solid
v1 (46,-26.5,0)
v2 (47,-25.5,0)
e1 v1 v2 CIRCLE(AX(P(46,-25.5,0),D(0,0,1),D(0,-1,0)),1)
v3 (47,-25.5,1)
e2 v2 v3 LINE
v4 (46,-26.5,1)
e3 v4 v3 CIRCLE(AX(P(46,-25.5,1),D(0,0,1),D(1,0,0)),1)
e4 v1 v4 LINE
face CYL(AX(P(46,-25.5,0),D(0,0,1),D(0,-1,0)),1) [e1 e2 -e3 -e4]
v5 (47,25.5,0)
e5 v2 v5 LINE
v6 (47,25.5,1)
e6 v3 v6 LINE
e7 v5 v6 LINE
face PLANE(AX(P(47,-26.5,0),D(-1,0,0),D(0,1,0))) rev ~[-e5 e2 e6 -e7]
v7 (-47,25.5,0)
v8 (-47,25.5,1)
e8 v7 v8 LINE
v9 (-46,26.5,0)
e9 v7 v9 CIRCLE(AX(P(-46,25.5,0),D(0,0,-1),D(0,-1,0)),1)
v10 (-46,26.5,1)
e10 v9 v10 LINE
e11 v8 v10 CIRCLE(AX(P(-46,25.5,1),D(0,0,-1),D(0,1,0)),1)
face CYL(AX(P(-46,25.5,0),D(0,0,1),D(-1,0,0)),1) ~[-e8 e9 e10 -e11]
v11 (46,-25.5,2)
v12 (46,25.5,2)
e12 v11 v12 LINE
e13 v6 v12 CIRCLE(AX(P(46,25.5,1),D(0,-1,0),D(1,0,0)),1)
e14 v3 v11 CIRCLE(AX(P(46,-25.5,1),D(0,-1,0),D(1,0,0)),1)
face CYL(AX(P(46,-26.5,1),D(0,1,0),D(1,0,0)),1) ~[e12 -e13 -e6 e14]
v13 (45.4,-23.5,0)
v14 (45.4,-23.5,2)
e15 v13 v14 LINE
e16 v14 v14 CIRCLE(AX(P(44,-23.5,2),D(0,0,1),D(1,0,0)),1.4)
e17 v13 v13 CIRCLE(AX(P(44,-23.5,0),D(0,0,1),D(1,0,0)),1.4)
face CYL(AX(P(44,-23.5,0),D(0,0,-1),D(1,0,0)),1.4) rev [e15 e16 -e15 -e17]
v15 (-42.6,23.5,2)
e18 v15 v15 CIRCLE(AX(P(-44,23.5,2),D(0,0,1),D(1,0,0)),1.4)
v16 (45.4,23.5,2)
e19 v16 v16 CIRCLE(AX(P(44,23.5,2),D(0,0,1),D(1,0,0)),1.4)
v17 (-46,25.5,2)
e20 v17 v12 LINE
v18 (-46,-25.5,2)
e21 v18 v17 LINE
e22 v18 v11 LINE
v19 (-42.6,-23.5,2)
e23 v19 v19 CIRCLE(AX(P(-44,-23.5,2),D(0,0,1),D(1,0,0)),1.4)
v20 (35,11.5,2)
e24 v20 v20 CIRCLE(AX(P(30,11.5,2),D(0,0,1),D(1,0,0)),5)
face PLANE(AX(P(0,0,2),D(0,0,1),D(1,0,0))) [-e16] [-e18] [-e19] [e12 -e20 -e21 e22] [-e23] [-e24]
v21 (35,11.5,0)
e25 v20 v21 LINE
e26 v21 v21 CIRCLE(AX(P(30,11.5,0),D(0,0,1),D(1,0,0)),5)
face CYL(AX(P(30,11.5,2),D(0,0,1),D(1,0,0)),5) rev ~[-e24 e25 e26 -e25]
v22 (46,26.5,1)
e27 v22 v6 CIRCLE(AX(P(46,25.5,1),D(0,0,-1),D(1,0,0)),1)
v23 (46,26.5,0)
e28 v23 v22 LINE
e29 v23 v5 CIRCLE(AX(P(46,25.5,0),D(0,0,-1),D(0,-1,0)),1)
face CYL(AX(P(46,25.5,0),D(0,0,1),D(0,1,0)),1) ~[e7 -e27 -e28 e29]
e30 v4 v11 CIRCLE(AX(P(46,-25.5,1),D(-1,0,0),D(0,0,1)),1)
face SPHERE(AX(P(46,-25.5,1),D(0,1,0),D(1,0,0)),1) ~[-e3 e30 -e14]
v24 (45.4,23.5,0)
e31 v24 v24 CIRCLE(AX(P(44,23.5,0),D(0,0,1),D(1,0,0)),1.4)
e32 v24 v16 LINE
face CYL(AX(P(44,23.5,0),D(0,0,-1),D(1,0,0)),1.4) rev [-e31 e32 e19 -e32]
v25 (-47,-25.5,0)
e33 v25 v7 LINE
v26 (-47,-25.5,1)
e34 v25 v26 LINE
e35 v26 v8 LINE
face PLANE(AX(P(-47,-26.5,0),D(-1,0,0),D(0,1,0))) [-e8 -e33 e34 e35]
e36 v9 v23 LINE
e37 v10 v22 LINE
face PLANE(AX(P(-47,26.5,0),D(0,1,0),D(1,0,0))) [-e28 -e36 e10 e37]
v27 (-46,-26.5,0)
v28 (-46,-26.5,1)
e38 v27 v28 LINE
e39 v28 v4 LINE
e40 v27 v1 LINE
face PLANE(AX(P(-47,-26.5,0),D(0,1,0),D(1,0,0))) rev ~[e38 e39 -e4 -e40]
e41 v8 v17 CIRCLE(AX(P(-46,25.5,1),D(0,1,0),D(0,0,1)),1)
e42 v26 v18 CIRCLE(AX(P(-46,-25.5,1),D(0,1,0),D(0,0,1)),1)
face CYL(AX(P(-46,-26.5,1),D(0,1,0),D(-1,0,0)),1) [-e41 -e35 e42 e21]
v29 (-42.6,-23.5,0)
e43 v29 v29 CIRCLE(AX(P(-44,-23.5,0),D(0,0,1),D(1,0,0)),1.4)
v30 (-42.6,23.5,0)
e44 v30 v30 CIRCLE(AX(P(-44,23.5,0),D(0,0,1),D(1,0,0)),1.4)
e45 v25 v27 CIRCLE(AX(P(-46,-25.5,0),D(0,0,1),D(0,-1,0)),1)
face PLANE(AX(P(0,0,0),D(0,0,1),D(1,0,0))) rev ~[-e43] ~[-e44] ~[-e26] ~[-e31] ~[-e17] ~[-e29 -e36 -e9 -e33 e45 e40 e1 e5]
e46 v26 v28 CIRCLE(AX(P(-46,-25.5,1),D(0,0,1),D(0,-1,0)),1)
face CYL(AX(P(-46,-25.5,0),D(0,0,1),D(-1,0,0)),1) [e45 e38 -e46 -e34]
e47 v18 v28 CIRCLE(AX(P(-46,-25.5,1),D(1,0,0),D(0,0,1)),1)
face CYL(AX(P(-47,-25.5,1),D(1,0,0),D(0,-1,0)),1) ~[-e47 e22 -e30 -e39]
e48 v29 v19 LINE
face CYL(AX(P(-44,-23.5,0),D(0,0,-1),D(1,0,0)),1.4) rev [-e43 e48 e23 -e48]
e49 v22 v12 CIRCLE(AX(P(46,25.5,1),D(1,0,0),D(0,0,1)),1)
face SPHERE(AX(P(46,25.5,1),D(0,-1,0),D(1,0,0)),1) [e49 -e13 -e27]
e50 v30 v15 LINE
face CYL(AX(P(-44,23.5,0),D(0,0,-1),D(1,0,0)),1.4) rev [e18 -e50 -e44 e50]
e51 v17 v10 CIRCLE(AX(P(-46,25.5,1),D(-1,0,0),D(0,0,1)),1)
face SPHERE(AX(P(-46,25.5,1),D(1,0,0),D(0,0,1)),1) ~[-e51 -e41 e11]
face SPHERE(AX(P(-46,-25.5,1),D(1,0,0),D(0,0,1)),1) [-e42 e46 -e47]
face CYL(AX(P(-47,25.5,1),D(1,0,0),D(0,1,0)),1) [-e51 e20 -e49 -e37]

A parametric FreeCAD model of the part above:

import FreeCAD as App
import Part
import Sketcher


def edges_at(feature, points):
    """Names of the edges that pass closest to the given points."""
    edges = feature.Shape.Edges
    near = lambda p: min(range(len(edges)), key=lambda i: edges[i].distToShape(Part.Vertex(*p))[0])
    return sorted({f"Edge{near(p) + 1}" for p in points})


def add_polygon(sketch, points):
    """Adds a closed chain of lines whose ends are joined by coincident constraints."""
    first, n = sketch.GeometryCount, len(points)
    for a, b in zip(points, points[1:] + points[:1]):
        sketch.addGeometry(Part.LineSegment(App.Vector(*a, 0), App.Vector(*b, 0)), False)
    for i in range(n):
        sketch.addConstraint(Sketcher.Constraint("Coincident", first + i, 2, first + (i + 1) % n, 1))

doc = App.newDocument("Part")
body = doc.addObject("PartDesign::Body", "Body")

# Sketch on XY plane
sketch1 = doc.addObject("Sketcher::SketchObject", "Sketch")
body.addObject(sketch1)
sketch1.AttachmentSupport = (doc.XY_Plane, [""])
sketch1.MapMode = "FlatFace"
add_polygon(sketch1, [(-47, 26.5), (-47, -26.5), (47, -26.5), (47, 26.5)])  # lines 0-3
sketch1.addGeometry(Part.Circle(App.Vector(-44, -23.5, 0), App.Vector(0, 0, 1), 1.4), False)  # 4
sketch1.addGeometry(Part.Circle(App.Vector(44, -23.5, 0), App.Vector(0, 0, 1), 1.4), False)  # 5
sketch1.addGeometry(Part.Circle(App.Vector(-44, 23.5, 0), App.Vector(0, 0, 1), 1.4), False)  # 6
sketch1.addGeometry(Part.Circle(App.Vector(44, 23.5, 0), App.Vector(0, 0, 1), 1.4), False)  # 7
sketch1.addConstraint([
    Sketcher.Constraint("Vertical", 0),
    Sketcher.Constraint("Horizontal", 1),
    Sketcher.Constraint("Vertical", 2),
    Sketcher.Constraint("Horizontal", 3),
    Sketcher.Constraint("Equal", 4, 5),
    Sketcher.Constraint("Equal", 5, 6),
    Sketcher.Constraint("Equal", 6, 7),
    Sketcher.Constraint("Symmetric", 5, 3, 6, 3, -1, 1),
    Sketcher.Constraint("Symmetric", 4, 3, 7, 3, -1, 1),
    Sketcher.Constraint("Symmetric", 0, 2, 2, 2, -1, 1),
    Sketcher.Constraint("Symmetric", 4, 3, 5, 3, -2),
    Sketcher.Constraint("Diameter", 4, 2.8),
    Sketcher.Constraint("DistanceX", 1, 1, 1, 2, 94.0),
    Sketcher.Constraint("DistanceY", 0, 2, 0, 1, 53.0),
    Sketcher.Constraint("DistanceX", 4, 3, -1, 1, 44.0),
    Sketcher.Constraint("DistanceY", 4, 3, 6, 3, 47.0),
])
pad1 = doc.addObject("PartDesign::Pad", "Pad")
body.addObject(pad1)
pad1.Profile = sketch1
pad1.Length = 2
doc.recompute()

fillet = doc.addObject("PartDesign::Fillet", "Fillet")
body.addObject(fillet)
fillet.Base = (pad1, edges_at(pad1, [
    (47, 0, 2),
    (47, 26.5, 1),
    (47, -26.5, 1),
    (0, -26.5, 2),
    (0, 26.5, 2),
    (-47, 0, 2),
    (-47, 26.5, 1),
    (-47, -26.5, 1),
]))
fillet.Radius = 1

# Sketch on XY plane
sketch2 = doc.addObject("Sketcher::SketchObject", "Sketch001")
body.addObject(sketch2)
sketch2.AttachmentSupport = (doc.XY_Plane, [""])
sketch2.MapMode = "FlatFace"
sketch2.AttachmentOffset = App.Placement(App.Vector(0, 0, 2), App.Rotation())
sketch2.addGeometry(Part.Circle(App.Vector(30, 12, 0), App.Vector(0, 0, 1), 5), False)
sketch2.addConstraint([
    Sketcher.Constraint("Diameter", 0, 10.0),
    Sketcher.Constraint("DistanceX", -1, 1, 0, 3, 30.0),
    Sketcher.Constraint("DistanceY", -1, 1, 0, 3, 11.5),
])
pocket1 = doc.addObject("PartDesign::Pocket", "Pocket")
body.addObject(pocket1)
pocket1.Profile = sketch2
pocket1.Length = 5

doc.recompute()
